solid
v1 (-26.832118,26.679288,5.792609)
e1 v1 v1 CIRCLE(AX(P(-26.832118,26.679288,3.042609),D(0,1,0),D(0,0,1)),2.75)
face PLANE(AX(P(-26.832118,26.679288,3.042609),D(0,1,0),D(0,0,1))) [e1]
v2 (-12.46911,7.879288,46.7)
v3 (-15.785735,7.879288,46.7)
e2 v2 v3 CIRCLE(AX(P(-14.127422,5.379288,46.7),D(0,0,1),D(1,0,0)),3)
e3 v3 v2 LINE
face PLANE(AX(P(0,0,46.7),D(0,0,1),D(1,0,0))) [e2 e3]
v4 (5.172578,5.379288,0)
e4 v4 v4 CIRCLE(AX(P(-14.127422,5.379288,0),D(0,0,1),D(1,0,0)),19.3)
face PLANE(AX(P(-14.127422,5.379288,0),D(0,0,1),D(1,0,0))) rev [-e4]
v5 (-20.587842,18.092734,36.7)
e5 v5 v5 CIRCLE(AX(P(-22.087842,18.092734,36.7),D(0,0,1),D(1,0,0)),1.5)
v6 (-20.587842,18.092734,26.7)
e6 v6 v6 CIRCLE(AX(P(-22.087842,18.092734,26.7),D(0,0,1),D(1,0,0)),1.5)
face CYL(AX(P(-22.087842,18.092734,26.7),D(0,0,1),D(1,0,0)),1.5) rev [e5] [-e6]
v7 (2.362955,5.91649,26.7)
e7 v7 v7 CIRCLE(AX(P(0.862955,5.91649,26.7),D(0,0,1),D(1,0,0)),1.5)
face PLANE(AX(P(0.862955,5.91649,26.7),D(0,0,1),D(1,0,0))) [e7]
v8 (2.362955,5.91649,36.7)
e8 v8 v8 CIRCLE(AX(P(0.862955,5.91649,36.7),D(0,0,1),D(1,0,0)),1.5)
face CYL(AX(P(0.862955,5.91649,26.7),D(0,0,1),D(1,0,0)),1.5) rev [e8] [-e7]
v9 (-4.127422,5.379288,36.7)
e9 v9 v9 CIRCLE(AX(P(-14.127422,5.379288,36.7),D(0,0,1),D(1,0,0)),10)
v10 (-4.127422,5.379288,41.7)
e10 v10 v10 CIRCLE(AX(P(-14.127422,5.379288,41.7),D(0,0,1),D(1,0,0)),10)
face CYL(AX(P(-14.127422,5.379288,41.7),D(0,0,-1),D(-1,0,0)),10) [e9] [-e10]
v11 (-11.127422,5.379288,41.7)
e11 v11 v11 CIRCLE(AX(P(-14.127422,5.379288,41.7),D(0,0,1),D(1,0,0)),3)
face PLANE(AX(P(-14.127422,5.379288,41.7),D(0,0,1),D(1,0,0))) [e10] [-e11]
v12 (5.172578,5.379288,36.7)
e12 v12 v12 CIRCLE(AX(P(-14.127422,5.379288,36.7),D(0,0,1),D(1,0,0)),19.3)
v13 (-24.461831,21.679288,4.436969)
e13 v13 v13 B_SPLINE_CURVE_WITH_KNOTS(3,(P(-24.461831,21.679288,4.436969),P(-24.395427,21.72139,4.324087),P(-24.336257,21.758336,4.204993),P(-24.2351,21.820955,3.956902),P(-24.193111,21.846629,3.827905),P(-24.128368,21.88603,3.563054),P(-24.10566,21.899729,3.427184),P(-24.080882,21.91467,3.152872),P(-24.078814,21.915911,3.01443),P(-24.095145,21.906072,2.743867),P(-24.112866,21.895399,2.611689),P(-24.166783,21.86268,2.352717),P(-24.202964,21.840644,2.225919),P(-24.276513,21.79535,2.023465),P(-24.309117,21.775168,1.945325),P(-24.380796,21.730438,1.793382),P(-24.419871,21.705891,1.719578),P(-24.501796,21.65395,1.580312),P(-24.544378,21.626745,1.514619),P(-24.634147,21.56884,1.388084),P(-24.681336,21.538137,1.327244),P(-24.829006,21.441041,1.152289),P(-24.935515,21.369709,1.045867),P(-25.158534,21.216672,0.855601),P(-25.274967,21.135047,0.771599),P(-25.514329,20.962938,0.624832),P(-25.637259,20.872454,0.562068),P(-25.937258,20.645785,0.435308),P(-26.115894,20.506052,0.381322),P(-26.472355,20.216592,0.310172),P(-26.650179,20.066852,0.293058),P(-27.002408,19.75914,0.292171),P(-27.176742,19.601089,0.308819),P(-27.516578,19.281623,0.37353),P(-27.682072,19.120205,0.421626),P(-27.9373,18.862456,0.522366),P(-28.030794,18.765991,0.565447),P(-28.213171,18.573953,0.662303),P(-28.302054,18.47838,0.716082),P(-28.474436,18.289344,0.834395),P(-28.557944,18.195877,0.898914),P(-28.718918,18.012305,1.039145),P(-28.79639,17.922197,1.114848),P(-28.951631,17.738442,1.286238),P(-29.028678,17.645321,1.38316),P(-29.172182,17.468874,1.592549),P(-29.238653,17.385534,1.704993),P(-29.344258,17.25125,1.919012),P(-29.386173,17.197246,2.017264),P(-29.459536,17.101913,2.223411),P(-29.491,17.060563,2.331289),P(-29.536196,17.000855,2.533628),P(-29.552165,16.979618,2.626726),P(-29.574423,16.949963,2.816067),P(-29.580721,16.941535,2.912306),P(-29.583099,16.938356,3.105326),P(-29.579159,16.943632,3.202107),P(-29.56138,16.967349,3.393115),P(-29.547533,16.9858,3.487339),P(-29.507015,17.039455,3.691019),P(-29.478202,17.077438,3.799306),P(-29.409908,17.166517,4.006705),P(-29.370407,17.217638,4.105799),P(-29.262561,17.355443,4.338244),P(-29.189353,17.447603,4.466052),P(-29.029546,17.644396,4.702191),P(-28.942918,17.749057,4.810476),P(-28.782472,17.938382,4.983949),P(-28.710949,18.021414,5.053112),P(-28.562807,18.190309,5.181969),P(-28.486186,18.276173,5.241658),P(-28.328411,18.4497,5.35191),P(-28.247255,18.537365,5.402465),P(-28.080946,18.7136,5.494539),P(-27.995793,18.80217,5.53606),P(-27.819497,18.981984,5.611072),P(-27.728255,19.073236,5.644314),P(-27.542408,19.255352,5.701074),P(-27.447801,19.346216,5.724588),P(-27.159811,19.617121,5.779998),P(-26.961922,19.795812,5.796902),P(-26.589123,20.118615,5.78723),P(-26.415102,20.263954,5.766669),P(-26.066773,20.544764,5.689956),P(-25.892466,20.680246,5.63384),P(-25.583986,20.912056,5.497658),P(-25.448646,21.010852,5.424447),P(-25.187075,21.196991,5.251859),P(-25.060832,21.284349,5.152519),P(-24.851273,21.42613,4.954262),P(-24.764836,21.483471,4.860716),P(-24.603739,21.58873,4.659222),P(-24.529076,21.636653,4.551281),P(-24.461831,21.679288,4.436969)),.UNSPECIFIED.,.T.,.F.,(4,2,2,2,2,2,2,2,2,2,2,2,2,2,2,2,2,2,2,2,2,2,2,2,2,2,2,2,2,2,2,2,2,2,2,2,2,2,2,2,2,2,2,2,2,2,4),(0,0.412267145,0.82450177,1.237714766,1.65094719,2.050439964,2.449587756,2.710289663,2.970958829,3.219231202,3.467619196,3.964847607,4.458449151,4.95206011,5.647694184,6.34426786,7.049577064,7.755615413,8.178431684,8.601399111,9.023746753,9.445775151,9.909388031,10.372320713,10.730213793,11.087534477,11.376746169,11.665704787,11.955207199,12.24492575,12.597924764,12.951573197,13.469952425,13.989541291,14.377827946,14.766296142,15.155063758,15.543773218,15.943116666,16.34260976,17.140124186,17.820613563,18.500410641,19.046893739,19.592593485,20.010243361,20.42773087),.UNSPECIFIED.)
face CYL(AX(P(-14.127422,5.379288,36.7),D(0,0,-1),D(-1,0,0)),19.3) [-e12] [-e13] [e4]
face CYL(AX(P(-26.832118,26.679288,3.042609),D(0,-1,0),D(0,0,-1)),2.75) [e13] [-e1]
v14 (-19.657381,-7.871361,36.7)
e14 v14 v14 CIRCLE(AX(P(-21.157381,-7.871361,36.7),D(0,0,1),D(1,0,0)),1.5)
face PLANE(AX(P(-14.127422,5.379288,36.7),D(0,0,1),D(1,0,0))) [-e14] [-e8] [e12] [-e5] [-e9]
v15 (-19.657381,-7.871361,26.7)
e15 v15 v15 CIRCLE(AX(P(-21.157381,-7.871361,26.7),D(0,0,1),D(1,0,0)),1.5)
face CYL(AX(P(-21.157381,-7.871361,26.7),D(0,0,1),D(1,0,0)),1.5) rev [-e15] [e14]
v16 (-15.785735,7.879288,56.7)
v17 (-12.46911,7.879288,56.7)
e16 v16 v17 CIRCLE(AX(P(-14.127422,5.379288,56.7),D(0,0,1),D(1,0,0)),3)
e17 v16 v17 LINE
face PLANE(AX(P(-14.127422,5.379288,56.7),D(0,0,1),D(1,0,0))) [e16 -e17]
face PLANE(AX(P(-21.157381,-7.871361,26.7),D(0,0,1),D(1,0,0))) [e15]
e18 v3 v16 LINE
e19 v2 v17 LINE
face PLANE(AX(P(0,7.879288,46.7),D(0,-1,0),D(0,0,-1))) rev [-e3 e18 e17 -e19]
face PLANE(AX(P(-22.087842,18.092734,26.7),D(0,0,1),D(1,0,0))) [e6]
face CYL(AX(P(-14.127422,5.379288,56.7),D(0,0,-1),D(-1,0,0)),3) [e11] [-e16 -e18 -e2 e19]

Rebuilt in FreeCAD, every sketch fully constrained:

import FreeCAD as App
import Part
import Sketcher


def add_polygon(sketch, points):
    """Adds a closed chain of lines whose ends are joined by coincident constraints."""
    first, n = sketch.GeometryCount, len(points)
    for a, b in zip(points, points[1:] + points[:1]):
        sketch.addGeometry(Part.LineSegment(App.Vector(*a, 0), App.Vector(*b, 0)), False)
    for i in range(n):
        sketch.addConstraint(Sketcher.Constraint("Coincident", first + i, 2, first + (i + 1) % n, 1))

doc = App.newDocument("Part")
body = doc.addObject("PartDesign::Body", "Body")

# Sketch on XY plane
sketch1 = body.newObject("Sketcher::SketchObject", "Sketch")
sketch1.AttachmentSupport = (doc.getObject("XY_Plane"), [""])
sketch1.MapMode = "FlatFace"
sketch1.addGeometry(Part.Circle(App.Vector(-14.127422, 5.379288, 0), App.Vector(0, 0, 1), 19.3), False)
sketch1.addConstraint([
    Sketcher.Constraint("Diameter", 0, 38.6),
    Sketcher.Constraint("DistanceX", 0, 3, -1, 1, 14.127422),
    Sketcher.Constraint("DistanceY", -1, 1, 0, 3, 5.379288),
])
pad1 = body.newObject("PartDesign::Pad", "Pad")
pad1.Profile = sketch1
pad1.Length = 36.7

# Sketch on XY plane
sketch2 = body.newObject("Sketcher::SketchObject", "Sketch001")
sketch2.AttachmentSupport = (doc.getObject("XY_Plane"), [""])
sketch2.MapMode = "FlatFace"
sketch2.AttachmentOffset = App.Placement(App.Vector(0, 0, 36.7), App.Rotation())
sketch2.addGeometry(Part.Circle(App.Vector(-14.127422, 5.379288, 0), App.Vector(0, 0, 1), 10), False)
sketch2.addConstraint([
    Sketcher.Constraint("Diameter", 0, 20.0),
    Sketcher.Constraint("DistanceX", 0, 3, -1, 1, 14.127422),
    Sketcher.Constraint("DistanceY", -1, 1, 0, 3, 5.379288),
])
pad2 = body.newObject("PartDesign::Pad", "Pad001")
pad2.Profile = sketch2
pad2.Length = 5

# Sketch on XY plane
sketch3 = body.newObject("Sketcher::SketchObject", "Sketch002")
sketch3.AttachmentSupport = (doc.getObject("XY_Plane"), [""])
sketch3.MapMode = "FlatFace"
sketch3.AttachmentOffset = App.Placement(App.Vector(0, 0, 41.7), App.Rotation())
sketch3.addGeometry(Part.Circle(App.Vector(-14.127422, 5.379288, 0), App.Vector(0, 0, 1), 3), False)
sketch3.addConstraint([
    Sketcher.Constraint("Diameter", 0, 6.0),
    Sketcher.Constraint("DistanceX", 0, 3, -1, 1, 14.127422),
    Sketcher.Constraint("DistanceY", -1, 1, 0, 3, 5.379288),
])
pad3 = body.newObject("PartDesign::Pad", "Pad002")
pad3.Profile = sketch3
pad3.Length = 15
body2 = doc.addObject("PartDesign::Body", "Body001")

# Sketch on XZ plane
sketch4 = body2.newObject("Sketcher::SketchObject", "Sketch003")
sketch4.AttachmentSupport = (doc.getObject("XZ_Plane001"), [""])
sketch4.MapMode = "FlatFace"
sketch4.AttachmentOffset = App.Placement(App.Vector(0, 0, -21.679288), App.Rotation())
sketch4.addGeometry(Part.Circle(App.Vector(-26.832118, 3.042609, 0), App.Vector(0, 0, 1), 2.75), False)
sketch4.addConstraint([
    Sketcher.Constraint("Diameter", 0, 5.5),
    Sketcher.Constraint("DistanceY", -1, 1, 0, 3, 3.042609),
    Sketcher.Constraint("DistanceX", 0, 3, -1, 1, 26.832118),
])
pad4 = body2.newObject("PartDesign::Pad", "Pad003")
pad4.Profile = sketch4
pad4.Length = 15
doc.recompute()

boolean = body.newObject("PartDesign::Boolean", "Boolean")
boolean.Type = "Fuse"
boolean.addObjects([body2])

# Sketch on XZ plane
sketch5 = body.newObject("Sketcher::SketchObject", "Sketch004")
sketch5.AttachmentSupport = (doc.getObject("XZ_Plane"), [""])
sketch5.MapMode = "FlatFace"
sketch5.AttachmentOffset = App.Placement(App.Vector(0, 0, -21.679288), App.Rotation())
sketch5.addGeometry(Part.Circle(App.Vector(-26.832118, 3.042609, 0), App.Vector(0, 0, 1), 2.75), False)
sketch5.addConstraint([
    Sketcher.Constraint("Diameter", 0, 5.5),
    Sketcher.Constraint("DistanceY", -1, 1, 0, 3, 3.042609),
    Sketcher.Constraint("DistanceX", 0, 3, -1, 1, 26.832118),
])
pad5 = body.newObject("PartDesign::Pad", "Pad004")
pad5.Profile = sketch5
pad5.Length = 5
pad5.Reversed = True

# Sketch on XY plane
sketch6 = body.newObject("Sketcher::SketchObject", "Sketch005")
sketch6.AttachmentSupport = (doc.getObject("XY_Plane"), [""])
sketch6.MapMode = "FlatFace"
sketch6.AttachmentOffset = App.Placement(App.Vector(0, 0, 36.7), App.Rotation())
sketch6.addGeometry([
    Part.Circle(App.Vector(0.862955, 5.91649, 0), App.Vector(0, 0, 1), 1.5),
    Part.Circle(App.Vector(-21.157381, -7.871361, 0), App.Vector(0, 0, 1), 1.5),
    Part.Circle(App.Vector(-22.087842, 18.092734, 0), App.Vector(0, 0, 1), 1.5),
], False)
sketch6.addConstraint([
    Sketcher.Constraint("Equal", 0, 1),
    Sketcher.Constraint("Equal", 1, 2),
    Sketcher.Constraint("Diameter", 0, 3.0),
    Sketcher.Constraint("DistanceY", -1, 1, 0, 3, 5.91649),
    Sketcher.Constraint("DistanceX", 1, 3, -1, 1, 21.157381),
    Sketcher.Constraint("DistanceY", 1, 3, -1, 1, 7.871361),
    Sketcher.Constraint("DistanceX", 2, 3, -1, 1, 22.087842),
    Sketcher.Constraint("DistanceX", -1, 1, 0, 3, 0.862955),
    Sketcher.Constraint("DistanceY", -1, 1, 2, 3, 18.092734),
])
pocket1 = body.newObject("PartDesign::Pocket", "Pocket")
pocket1.Profile = sketch6
pocket1.Length = 10

# Sketch on XY plane
sketch7 = body.newObject("Sketcher::SketchObject", "Sketch006")
sketch7.AttachmentSupport = (doc.getObject("XY_Plane"), [""])
sketch7.MapMode = "FlatFace"
sketch7.AttachmentOffset = App.Placement(App.Vector(0, 0, 56.7), App.Rotation())
add_polygon(sketch7, [(-86.266835, 7.879288), (58.01199, 7.879288), (58.01199, 148.841488), (-86.266835, 148.841488)])  # lines 0-3
sketch7.addConstraint([
    Sketcher.Constraint("Horizontal", 0),
    Sketcher.Constraint("Vertical", 1),
    Sketcher.Constraint("Horizontal", 2),
    Sketcher.Constraint("Vertical", 3),
    Sketcher.Constraint("DistanceY", 1, 1, 1, 2, 140.9622),
    Sketcher.Constraint("DistanceX", 0, 1, 0, 2, 144.278825),
    Sketcher.Constraint("DistanceX", -1, 1, 0, 2, 58.01199),
    Sketcher.Constraint("DistanceY", -1, 1, 0, 2, 7.879288),
])
pocket2 = body.newObject("PartDesign::Pocket", "Pocket001")
pocket2.Profile = sketch7
pocket2.Length = 10

doc.recompute()
